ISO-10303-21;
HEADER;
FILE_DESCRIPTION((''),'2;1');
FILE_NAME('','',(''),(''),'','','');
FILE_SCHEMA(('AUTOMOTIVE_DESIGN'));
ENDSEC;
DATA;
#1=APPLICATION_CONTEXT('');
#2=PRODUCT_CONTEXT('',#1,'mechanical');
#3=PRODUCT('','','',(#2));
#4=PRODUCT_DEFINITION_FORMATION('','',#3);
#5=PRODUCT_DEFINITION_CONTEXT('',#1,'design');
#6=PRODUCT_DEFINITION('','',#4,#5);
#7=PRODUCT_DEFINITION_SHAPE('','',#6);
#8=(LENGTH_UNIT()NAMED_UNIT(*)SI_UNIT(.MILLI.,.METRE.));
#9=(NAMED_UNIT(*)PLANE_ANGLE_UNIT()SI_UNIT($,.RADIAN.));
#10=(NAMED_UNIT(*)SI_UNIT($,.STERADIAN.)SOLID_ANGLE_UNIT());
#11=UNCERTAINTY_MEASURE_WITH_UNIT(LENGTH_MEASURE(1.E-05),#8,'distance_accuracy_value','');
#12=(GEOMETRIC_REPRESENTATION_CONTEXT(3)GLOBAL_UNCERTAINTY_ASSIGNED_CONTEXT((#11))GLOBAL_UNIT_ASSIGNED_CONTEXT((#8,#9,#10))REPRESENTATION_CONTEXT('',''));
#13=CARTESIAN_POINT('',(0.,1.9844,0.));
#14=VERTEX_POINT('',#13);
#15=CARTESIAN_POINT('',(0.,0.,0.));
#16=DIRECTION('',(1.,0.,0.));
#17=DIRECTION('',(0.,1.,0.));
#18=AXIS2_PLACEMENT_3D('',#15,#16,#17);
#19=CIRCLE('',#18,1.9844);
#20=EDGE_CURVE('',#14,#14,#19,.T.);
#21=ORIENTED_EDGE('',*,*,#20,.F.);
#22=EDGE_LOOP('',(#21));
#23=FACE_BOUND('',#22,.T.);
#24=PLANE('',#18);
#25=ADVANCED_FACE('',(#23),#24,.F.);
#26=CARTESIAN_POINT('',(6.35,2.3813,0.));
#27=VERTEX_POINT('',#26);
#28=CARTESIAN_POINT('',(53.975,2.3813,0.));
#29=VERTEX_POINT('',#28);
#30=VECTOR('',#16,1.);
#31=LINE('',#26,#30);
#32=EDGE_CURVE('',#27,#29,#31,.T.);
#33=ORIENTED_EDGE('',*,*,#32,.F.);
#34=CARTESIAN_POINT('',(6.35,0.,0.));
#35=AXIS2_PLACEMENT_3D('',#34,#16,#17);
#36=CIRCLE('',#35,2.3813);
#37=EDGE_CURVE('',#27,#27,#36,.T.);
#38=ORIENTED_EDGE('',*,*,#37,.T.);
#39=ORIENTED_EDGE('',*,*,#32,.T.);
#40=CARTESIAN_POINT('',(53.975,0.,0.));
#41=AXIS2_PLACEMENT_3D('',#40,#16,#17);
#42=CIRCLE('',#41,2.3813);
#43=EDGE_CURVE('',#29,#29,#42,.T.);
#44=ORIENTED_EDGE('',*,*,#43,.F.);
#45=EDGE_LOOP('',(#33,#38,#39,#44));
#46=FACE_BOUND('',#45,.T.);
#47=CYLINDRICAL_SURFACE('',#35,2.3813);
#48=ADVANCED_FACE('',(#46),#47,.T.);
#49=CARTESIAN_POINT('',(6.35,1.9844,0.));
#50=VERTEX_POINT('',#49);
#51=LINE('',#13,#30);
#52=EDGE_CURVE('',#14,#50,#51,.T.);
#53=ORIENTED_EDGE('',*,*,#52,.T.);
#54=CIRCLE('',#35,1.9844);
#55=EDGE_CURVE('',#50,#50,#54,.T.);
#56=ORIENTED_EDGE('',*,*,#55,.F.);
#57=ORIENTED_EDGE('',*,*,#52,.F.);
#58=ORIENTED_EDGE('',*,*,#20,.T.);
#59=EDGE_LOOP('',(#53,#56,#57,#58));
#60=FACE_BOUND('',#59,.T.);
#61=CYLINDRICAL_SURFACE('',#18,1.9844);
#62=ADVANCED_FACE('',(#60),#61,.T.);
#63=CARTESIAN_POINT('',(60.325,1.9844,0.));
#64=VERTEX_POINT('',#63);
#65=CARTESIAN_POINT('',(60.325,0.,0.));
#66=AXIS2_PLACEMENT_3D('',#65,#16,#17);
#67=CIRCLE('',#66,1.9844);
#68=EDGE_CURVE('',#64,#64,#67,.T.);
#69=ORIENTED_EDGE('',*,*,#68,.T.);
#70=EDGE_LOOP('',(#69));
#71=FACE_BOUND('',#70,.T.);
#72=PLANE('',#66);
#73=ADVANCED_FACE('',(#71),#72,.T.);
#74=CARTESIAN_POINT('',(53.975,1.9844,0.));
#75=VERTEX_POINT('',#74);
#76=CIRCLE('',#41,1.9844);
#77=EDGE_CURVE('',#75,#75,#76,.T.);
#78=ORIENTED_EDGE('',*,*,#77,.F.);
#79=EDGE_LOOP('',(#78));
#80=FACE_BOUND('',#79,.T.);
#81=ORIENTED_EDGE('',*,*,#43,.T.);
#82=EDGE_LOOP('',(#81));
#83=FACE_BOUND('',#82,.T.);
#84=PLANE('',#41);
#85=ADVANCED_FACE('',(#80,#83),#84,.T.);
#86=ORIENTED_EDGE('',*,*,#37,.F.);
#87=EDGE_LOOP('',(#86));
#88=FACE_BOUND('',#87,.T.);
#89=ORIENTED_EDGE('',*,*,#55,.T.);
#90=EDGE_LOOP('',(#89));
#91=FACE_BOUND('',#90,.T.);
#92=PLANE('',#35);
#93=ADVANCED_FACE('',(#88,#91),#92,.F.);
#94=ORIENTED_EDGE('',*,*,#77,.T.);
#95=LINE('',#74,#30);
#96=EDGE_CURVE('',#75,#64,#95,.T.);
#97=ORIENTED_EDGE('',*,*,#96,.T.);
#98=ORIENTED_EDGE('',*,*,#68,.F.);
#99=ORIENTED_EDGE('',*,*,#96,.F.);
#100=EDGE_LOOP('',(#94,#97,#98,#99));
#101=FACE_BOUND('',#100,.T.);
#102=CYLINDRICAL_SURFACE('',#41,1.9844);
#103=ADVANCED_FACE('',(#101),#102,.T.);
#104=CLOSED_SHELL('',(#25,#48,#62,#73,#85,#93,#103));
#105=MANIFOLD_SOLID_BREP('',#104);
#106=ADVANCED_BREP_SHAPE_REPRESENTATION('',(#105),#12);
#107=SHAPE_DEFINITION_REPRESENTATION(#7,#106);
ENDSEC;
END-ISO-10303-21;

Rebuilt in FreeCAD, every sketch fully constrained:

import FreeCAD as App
import Part
import Sketcher

V = App.Vector
Q = App.Units.Quantity

doc = App.newDocument("Part")
body = doc.addObject("PartDesign::Body", "Body")

sketch1 = body.newObject("Sketcher::SketchObject", "Sketch")
sketch1.AttachmentSupport = (doc.getObject("XY_Plane"), [""])
sketch1.MapMode = "FlatFace"
sketch1.addGeometry([
    Part.LineSegment(V(0, 1.98, 0), V(0, 0, 0)),
    Part.LineSegment(V(0, 0, 0), V(60.33, 0, 0)),
    Part.LineSegment(V(60.33, 0, 0), V(60.33, 1.98, 0)),
    Part.LineSegment(V(60.33, 1.98, 0), V(53.98, 1.98, 0)),
    Part.LineSegment(V(53.98, 1.98, 0), V(53.98, 2.38, 0)),
    Part.LineSegment(V(53.98, 2.38, 0), V(6.35, 2.38, 0)),
    Part.LineSegment(V(6.35, 2.38, 0), V(6.35, 1.98, 0)),
    Part.LineSegment(V(6.35, 1.98, 0), V(0, 1.98, 0)),
], False)
sketch1.addConstraint([
    Sketcher.Constraint("Coincident", 0, 2, 1, 1),
    Sketcher.Constraint("Coincident", 1, 2, 2, 1),
    Sketcher.Constraint("Coincident", 2, 2, 3, 1),
    Sketcher.Constraint("Coincident", 3, 2, 4, 1),
    Sketcher.Constraint("Coincident", 4, 2, 5, 1),
    Sketcher.Constraint("Coincident", 5, 2, 6, 1),
    Sketcher.Constraint("Coincident", 6, 2, 7, 1),
    Sketcher.Constraint("Coincident", 7, 2, 0, 1),
    Sketcher.Constraint("Vertical", 0),
    Sketcher.Constraint("Horizontal", 1),
    Sketcher.Constraint("Vertical", 2),
    Sketcher.Constraint("Horizontal", 3),
    Sketcher.Constraint("Vertical", 4),
    Sketcher.Constraint("Horizontal", 5),
    Sketcher.Constraint("Vertical", 6),
    Sketcher.Constraint("Horizontal", 7),
    Sketcher.Constraint("Coincident", 0, 2, -1, 1),
    Sketcher.Constraint("Horizontal", 3, 2, 6, 2),
    Sketcher.Constraint("Equal", 3, 7),
    Sketcher.Constraint("DistanceX", 3, 2, 3, 1, Q("0.25 in")),
    Sketcher.Constraint("DistanceX", 1, 1, 1, 2, Q("2.375 in")),
    Sketcher.Constraint("DistanceY", 0, 2, 0, 1, Q("0.078126 in")),
    Sketcher.Constraint("DistanceY", 4, 1, 4, 2, Q("0.0156299 in")),
])
revolution = body.newObject("PartDesign::Revolution", "Revolution")
revolution.Profile = sketch1
revolution.ReferenceAxis = (sketch1, ["H_Axis"])
revolution.Angle = 360

doc.recompute()
